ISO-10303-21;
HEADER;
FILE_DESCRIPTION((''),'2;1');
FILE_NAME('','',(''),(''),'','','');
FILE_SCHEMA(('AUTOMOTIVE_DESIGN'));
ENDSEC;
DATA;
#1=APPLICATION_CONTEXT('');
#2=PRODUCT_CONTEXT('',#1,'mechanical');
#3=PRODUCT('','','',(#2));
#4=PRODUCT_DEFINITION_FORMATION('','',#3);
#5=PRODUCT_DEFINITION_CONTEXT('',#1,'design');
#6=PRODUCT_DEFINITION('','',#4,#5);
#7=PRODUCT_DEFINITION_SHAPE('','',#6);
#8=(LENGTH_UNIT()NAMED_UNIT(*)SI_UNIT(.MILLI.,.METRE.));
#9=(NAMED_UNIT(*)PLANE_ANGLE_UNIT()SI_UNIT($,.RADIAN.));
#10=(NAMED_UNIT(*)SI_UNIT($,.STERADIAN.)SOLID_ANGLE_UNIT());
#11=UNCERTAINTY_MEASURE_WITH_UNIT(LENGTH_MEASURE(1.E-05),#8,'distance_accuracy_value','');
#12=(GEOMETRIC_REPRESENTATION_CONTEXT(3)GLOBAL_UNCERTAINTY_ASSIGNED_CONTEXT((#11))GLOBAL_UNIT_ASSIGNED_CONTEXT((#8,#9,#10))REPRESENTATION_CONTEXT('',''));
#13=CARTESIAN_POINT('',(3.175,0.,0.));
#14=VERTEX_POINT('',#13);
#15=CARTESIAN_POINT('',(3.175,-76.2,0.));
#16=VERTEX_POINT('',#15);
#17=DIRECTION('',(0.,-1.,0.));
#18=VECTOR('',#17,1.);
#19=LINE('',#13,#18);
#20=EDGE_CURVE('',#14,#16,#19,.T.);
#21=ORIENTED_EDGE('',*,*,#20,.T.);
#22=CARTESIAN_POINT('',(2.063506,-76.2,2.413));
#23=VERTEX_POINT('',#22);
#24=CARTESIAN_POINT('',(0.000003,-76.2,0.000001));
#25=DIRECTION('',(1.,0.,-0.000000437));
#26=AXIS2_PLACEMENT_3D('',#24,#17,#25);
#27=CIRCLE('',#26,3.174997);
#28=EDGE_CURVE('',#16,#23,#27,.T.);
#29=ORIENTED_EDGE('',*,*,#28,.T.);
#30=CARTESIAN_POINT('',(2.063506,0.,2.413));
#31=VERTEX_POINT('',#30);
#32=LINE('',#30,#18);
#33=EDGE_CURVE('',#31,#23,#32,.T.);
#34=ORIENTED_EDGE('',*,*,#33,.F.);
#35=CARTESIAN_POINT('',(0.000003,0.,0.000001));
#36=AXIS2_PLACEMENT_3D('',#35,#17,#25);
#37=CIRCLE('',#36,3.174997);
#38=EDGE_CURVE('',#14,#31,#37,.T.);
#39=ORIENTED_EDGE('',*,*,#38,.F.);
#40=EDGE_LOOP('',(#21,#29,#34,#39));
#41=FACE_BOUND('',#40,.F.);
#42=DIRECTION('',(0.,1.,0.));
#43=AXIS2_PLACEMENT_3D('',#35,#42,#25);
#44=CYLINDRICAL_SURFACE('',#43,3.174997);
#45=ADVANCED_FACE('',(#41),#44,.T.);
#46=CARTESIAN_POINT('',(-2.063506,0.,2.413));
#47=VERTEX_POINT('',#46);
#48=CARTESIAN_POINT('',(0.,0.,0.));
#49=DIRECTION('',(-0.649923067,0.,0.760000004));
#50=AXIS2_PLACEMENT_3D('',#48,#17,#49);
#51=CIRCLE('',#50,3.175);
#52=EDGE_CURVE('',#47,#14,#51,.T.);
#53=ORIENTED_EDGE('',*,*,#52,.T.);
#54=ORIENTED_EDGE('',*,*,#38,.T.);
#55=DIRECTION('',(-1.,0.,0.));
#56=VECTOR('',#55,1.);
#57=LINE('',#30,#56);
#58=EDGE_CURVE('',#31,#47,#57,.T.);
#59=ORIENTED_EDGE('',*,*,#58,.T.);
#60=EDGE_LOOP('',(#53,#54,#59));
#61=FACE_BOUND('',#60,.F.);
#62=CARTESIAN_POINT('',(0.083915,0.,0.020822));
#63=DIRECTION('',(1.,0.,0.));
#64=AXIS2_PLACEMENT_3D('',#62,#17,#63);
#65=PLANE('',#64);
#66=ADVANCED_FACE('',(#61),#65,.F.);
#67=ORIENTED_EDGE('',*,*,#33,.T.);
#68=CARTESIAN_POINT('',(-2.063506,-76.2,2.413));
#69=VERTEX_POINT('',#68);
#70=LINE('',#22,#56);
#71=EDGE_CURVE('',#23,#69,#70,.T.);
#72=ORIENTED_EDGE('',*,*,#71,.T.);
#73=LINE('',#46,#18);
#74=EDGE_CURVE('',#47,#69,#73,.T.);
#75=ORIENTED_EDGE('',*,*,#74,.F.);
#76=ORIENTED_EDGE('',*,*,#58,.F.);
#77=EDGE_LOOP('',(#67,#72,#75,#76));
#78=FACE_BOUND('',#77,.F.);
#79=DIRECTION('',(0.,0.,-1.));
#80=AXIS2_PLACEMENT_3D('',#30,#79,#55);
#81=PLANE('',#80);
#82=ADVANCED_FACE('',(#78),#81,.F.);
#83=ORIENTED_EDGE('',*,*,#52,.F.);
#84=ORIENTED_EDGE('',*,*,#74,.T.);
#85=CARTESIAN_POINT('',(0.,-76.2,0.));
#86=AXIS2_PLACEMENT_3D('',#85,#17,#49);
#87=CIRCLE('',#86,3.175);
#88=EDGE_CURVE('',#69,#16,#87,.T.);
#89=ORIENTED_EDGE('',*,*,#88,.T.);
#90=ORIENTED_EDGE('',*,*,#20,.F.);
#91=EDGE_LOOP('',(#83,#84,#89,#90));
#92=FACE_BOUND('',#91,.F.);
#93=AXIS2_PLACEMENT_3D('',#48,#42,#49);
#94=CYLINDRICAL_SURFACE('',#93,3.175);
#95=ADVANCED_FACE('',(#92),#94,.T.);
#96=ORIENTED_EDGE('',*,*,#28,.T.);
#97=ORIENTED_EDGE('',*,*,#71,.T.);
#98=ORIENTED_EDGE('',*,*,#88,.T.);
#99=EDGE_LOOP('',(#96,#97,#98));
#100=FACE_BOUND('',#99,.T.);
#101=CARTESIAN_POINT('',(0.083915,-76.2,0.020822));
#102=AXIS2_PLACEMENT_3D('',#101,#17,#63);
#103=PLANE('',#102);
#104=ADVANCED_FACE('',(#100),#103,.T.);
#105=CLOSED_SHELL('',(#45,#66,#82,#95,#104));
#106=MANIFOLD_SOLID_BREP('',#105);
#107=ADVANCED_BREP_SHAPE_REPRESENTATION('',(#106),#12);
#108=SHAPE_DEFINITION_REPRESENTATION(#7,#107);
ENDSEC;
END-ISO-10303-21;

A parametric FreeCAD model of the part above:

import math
import FreeCAD as App
import Part
import Sketcher

V = App.Vector
Q = App.Units.Quantity

doc = App.newDocument("Part")
body = doc.addObject("PartDesign::Body", "Body")

sketch1 = doc.addObject("Sketcher::SketchObject", "Sketch")
body.addObject(sketch1)
sketch1.AttachmentSupport = (doc.XZ_Plane, [""])
sketch1.MapMode = "FlatFace"
sketch1.addGeometry([
    Part.ArcOfCircle(Part.Circle(V(0, 0, 0), V(0, 0, 1), 3.2), math.radians(131), math.radians(360)),
    Part.ArcOfCircle(Part.Circle(V(0, 0, 0), V(0, 0, 1), 3.2), math.radians(0), math.radians(49)),
    Part.LineSegment(V(2.1, 2.4, 0), V(-2.1, 2.4, 0)),
], False)
sketch1.addConstraint([
    Sketcher.Constraint("Tangent", 0, 2, 1, 1),
    Sketcher.Constraint("Coincident", 1, 2, 2, 1),
    Sketcher.Constraint("Coincident", 2, 2, 0, 1),
    Sketcher.Constraint("Horizontal", 2),
    Sketcher.Constraint("Coincident", 0, 3, -1, 1),
    Sketcher.Constraint("PointOnObject", 0, 2, -1),
    Sketcher.Constraint("Radius", 0, Q("0.125 in")),
    Sketcher.Constraint("Radius", 1, Q("0.1249999 in")),
    Sketcher.Constraint("DistanceY", -1, 1, 1, 2, Q("0.095 in")),
])
pad1 = doc.addObject("PartDesign::Pad", "Pad")
body.addObject(pad1)
pad1.Profile = sketch1
pad1.Length = Q("3 in")

doc.recompute()
